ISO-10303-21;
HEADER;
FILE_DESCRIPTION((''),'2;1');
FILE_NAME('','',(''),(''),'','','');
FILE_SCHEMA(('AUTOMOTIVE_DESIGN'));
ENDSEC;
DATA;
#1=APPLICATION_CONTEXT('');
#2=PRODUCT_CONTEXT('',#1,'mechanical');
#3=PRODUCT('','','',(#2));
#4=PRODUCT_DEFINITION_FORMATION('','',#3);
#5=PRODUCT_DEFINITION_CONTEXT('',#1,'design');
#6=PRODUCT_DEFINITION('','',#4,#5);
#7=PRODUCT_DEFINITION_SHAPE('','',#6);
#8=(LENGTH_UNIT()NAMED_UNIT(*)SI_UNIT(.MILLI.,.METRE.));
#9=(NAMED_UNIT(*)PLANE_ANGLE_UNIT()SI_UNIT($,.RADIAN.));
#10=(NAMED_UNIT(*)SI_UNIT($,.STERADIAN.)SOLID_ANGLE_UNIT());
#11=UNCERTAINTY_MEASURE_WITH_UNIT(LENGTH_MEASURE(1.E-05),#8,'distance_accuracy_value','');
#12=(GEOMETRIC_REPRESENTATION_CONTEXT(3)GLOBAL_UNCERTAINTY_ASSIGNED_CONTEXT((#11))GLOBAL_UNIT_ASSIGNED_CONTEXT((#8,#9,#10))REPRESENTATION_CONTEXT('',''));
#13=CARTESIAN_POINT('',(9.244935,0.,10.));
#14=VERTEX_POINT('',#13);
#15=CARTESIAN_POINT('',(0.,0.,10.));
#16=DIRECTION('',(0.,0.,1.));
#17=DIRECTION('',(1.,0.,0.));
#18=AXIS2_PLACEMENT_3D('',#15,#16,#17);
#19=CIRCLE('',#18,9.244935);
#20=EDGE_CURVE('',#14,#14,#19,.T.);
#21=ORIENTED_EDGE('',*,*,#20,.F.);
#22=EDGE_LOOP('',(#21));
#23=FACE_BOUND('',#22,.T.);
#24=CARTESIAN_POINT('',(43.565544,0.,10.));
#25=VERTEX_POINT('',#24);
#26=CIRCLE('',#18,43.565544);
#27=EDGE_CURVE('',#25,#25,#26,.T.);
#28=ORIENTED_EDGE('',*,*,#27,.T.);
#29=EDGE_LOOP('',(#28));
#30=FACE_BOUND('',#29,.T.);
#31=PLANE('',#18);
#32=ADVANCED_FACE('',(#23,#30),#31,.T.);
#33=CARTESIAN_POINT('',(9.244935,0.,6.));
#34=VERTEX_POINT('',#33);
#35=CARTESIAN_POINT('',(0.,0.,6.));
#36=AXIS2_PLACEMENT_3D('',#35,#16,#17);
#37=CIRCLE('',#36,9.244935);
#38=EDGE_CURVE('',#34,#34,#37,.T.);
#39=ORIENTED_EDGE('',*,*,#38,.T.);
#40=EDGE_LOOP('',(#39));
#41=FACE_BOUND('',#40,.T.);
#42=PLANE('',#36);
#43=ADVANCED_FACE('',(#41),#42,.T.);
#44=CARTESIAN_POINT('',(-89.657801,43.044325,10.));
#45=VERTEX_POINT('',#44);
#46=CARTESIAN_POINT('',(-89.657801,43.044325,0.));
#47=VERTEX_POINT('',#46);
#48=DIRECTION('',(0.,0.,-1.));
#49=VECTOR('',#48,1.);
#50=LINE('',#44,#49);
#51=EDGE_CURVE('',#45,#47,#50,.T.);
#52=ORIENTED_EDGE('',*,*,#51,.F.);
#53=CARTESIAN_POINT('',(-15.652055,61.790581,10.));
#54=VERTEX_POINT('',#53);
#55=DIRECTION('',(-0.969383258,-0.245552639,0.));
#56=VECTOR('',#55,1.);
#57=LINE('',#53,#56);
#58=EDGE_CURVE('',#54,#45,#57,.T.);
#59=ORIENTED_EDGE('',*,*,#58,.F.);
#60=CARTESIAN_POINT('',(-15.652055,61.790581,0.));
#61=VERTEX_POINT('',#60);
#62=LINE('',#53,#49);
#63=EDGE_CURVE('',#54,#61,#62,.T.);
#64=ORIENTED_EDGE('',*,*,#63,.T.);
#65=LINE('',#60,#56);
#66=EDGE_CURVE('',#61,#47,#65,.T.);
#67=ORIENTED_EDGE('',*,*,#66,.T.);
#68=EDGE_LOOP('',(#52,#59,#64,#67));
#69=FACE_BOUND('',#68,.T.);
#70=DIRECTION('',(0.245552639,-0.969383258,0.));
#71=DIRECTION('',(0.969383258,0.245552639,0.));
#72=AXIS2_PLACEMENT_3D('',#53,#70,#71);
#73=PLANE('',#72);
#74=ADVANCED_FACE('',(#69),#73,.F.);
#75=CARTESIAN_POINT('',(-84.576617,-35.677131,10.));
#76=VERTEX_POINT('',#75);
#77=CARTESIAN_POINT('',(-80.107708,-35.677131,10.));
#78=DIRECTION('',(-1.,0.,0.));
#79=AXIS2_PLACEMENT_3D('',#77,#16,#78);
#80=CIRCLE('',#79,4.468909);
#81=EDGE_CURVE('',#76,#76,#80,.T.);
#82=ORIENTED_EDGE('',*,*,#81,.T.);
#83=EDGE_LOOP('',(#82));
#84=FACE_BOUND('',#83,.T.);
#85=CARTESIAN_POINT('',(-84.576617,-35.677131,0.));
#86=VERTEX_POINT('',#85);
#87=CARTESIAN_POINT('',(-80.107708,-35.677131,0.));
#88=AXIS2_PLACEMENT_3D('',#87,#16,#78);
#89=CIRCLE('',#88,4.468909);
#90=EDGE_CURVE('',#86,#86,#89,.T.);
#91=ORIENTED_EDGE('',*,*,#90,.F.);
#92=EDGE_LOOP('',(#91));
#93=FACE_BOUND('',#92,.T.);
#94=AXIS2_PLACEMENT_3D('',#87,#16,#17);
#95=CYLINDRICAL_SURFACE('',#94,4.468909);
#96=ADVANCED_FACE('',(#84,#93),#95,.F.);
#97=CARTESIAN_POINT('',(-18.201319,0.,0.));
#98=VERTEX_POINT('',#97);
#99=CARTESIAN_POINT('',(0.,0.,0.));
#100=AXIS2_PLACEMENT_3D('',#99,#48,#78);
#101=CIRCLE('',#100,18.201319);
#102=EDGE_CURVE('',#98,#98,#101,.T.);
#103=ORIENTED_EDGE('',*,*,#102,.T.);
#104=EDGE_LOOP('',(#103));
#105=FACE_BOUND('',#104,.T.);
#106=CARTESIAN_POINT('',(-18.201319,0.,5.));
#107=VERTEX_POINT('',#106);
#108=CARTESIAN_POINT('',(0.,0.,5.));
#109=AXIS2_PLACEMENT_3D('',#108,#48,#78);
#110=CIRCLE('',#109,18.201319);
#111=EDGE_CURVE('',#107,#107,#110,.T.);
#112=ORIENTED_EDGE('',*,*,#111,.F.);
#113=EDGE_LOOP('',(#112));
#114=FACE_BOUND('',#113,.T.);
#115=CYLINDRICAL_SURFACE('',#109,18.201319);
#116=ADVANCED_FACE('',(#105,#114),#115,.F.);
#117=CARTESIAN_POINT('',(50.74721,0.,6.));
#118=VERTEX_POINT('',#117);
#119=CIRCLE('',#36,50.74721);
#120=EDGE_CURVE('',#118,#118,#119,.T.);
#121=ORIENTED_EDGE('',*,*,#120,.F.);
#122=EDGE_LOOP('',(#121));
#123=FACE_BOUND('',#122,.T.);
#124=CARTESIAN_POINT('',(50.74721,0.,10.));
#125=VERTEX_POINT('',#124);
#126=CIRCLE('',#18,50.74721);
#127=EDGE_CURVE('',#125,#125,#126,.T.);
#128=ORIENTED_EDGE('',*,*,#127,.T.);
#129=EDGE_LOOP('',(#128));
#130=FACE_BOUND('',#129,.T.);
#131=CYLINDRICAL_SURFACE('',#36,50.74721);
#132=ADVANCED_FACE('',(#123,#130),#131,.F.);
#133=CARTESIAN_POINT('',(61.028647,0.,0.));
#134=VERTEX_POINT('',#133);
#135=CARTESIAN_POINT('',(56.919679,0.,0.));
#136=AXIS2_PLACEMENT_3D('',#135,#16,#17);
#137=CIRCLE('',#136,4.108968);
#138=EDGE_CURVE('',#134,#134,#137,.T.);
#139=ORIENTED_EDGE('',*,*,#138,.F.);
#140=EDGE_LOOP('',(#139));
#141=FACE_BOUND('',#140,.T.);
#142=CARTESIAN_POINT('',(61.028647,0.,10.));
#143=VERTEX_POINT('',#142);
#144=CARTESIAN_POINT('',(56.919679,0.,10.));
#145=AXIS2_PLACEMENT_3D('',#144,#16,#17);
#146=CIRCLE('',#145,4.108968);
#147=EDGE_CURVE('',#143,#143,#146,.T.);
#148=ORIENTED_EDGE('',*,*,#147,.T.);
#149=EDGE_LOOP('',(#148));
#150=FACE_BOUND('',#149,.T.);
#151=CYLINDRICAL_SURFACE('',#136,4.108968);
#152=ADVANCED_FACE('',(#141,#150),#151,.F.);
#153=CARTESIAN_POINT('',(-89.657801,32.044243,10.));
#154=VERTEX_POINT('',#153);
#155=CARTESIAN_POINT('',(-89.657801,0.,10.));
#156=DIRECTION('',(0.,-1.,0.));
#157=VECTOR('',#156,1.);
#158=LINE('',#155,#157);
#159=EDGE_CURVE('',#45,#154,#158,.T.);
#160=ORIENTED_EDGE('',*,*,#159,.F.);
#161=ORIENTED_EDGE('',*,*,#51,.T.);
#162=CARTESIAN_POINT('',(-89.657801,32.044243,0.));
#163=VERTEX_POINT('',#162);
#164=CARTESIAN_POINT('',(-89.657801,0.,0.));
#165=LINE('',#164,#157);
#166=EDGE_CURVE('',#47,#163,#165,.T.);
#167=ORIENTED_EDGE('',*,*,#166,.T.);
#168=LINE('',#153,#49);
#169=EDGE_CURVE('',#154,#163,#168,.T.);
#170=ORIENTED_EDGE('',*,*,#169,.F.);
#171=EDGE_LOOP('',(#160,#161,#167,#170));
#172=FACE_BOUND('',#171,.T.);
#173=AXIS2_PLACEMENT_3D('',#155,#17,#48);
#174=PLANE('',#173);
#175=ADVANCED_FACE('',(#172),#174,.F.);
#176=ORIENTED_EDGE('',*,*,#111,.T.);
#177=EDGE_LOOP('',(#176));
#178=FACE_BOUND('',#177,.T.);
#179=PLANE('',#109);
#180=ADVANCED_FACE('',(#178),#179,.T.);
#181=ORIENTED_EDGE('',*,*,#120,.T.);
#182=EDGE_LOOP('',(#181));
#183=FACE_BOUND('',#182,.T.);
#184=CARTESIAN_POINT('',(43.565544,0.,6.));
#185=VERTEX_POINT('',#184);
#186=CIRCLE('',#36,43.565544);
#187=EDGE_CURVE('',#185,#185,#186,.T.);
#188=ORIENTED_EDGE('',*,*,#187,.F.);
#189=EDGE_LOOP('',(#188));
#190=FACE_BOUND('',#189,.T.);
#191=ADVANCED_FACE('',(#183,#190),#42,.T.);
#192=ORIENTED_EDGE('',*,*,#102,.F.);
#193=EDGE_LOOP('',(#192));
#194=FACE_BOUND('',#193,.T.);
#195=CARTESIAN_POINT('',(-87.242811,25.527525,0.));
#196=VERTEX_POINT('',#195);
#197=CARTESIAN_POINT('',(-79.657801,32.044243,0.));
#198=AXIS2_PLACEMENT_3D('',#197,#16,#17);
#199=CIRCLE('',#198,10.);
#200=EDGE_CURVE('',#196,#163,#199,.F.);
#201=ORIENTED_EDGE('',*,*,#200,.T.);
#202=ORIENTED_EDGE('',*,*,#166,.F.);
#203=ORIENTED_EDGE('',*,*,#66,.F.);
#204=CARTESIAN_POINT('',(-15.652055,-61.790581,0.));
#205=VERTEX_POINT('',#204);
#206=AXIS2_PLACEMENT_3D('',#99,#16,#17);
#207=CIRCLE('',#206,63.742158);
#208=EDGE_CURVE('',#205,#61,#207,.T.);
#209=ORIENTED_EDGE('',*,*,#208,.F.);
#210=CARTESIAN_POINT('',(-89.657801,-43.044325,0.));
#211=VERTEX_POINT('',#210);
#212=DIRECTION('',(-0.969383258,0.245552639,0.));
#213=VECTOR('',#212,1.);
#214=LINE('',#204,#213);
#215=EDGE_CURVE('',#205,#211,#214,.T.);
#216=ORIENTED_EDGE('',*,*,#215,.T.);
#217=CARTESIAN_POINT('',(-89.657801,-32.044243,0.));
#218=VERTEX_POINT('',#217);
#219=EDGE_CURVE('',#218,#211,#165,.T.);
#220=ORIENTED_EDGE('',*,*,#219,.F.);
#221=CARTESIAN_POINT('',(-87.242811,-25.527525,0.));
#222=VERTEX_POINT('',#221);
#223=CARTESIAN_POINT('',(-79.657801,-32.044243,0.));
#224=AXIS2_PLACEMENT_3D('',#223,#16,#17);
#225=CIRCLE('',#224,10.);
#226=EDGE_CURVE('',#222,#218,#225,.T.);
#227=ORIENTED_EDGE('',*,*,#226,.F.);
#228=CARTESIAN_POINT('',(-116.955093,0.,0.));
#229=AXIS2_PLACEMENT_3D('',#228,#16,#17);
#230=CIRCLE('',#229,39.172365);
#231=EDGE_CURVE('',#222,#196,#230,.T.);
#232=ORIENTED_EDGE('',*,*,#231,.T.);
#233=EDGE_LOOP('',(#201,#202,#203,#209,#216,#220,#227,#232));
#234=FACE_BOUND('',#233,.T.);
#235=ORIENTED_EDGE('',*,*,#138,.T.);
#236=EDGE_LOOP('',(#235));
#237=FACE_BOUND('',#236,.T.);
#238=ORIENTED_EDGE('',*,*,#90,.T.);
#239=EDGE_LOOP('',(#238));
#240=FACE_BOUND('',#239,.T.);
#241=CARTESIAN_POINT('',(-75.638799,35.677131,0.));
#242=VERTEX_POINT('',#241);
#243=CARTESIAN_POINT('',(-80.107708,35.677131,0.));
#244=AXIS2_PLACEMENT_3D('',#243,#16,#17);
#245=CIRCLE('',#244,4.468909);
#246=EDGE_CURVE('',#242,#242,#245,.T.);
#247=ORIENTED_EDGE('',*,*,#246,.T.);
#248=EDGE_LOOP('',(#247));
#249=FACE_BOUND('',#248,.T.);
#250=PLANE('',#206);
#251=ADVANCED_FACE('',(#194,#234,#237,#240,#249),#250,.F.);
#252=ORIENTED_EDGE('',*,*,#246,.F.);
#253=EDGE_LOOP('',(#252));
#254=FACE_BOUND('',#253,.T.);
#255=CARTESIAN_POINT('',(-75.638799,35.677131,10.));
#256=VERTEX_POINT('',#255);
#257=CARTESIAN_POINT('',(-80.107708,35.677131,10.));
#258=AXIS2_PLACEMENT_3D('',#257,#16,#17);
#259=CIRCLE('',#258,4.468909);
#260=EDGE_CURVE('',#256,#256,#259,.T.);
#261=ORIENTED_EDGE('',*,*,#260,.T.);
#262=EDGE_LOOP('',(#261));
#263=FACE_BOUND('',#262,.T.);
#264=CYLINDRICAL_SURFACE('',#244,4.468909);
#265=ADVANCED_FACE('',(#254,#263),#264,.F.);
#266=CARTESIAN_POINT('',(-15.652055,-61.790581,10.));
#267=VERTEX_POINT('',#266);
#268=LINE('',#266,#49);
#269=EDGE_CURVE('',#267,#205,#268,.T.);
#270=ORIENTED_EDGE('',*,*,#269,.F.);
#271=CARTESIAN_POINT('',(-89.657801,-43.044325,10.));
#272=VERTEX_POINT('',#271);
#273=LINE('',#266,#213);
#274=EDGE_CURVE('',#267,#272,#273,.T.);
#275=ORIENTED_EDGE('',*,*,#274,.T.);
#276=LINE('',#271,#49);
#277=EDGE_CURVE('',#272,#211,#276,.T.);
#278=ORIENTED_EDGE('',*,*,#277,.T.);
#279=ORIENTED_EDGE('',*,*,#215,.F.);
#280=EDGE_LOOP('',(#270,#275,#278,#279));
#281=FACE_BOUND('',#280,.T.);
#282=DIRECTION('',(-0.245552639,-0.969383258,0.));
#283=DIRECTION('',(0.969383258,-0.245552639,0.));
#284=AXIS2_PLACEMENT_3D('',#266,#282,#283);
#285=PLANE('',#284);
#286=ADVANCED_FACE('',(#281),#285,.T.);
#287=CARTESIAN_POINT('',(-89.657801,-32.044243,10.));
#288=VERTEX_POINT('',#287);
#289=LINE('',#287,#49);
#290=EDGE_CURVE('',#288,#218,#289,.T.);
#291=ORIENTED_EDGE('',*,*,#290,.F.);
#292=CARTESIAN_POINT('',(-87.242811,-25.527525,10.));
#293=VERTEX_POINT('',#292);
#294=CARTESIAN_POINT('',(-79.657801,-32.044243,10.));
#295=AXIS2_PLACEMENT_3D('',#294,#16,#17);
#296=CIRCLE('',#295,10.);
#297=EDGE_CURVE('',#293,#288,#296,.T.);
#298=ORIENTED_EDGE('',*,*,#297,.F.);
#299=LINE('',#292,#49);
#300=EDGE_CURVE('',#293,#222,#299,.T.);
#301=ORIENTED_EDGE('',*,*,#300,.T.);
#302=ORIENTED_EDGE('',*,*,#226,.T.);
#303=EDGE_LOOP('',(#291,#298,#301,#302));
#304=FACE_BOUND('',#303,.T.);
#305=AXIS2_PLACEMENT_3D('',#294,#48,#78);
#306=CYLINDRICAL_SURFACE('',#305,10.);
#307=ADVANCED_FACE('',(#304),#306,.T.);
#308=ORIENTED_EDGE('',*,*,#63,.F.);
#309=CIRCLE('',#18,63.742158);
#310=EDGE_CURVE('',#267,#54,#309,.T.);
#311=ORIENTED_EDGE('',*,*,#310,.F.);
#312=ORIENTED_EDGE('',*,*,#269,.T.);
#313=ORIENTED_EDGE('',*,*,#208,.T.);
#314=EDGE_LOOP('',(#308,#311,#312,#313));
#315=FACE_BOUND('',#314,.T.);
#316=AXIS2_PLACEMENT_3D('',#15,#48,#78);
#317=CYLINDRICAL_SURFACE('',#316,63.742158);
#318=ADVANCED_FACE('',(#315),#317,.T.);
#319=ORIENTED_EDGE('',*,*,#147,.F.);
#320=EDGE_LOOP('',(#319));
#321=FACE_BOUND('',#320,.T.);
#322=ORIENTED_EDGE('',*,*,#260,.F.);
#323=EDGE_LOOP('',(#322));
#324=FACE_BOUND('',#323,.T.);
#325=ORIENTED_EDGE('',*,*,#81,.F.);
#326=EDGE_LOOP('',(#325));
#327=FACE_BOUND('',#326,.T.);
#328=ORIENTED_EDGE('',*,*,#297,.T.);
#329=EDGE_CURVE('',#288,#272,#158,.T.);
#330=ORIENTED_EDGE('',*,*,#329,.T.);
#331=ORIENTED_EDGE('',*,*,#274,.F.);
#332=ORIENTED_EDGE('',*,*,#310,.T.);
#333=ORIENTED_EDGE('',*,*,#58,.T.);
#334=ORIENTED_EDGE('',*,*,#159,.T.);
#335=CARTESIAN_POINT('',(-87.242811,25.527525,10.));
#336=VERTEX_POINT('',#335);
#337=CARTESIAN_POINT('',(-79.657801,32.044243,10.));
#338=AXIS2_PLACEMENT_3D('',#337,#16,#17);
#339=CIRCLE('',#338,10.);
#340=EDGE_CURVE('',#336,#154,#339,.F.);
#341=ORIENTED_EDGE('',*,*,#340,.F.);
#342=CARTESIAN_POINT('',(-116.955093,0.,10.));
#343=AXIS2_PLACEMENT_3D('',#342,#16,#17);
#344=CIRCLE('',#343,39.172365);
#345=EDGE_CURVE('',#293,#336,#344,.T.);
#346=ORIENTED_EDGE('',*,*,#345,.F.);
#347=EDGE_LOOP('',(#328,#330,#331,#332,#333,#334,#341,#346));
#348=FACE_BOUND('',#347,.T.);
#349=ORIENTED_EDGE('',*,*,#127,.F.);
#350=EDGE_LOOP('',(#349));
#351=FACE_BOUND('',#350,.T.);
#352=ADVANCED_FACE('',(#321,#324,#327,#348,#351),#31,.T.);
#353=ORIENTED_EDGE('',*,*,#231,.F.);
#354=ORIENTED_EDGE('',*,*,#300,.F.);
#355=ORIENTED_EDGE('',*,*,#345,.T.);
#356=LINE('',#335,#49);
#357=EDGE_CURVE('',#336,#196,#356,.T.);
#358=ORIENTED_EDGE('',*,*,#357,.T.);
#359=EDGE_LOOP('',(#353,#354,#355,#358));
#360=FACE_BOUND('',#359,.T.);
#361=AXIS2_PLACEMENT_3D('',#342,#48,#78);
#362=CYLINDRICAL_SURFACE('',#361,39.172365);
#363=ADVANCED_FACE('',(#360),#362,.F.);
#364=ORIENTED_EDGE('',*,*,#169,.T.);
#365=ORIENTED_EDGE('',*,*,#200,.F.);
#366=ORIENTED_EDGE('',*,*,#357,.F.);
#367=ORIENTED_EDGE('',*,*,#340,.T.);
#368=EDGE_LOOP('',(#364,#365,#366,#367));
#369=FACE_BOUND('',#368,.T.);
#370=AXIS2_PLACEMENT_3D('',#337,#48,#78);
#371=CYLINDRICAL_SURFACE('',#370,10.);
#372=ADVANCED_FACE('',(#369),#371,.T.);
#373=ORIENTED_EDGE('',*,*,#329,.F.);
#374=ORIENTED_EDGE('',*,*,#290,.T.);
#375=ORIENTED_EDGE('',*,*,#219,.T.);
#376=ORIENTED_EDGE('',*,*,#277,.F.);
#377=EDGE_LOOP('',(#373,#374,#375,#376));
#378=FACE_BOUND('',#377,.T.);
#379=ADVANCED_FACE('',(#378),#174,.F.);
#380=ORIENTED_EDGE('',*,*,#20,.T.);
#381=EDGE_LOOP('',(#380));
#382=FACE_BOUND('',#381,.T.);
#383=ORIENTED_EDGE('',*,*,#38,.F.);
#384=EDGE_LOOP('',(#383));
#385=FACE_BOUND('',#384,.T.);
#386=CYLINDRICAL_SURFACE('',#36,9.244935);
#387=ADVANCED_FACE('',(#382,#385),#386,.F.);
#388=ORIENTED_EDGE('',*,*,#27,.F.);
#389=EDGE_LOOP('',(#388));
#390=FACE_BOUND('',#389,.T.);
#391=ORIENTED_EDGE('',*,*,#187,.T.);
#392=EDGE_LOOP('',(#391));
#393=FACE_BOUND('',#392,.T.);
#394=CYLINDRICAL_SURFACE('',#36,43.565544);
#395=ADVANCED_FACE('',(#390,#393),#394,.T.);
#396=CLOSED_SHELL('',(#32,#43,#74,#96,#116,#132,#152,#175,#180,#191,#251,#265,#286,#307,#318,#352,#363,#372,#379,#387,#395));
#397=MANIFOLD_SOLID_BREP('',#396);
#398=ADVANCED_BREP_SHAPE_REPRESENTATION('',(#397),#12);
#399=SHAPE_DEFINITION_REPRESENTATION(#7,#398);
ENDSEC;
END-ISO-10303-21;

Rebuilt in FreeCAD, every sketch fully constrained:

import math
import FreeCAD as App
import Part
import Sketcher
Q = App.Units.Quantity

doc = App.newDocument("Part")
params = doc.addObject("Spreadsheet::Sheet", "Params")
for row, (alias, value) in enumerate([
    ("sketch1_radius", "10 mm"),
    ("pad1_length", "10 mm"),
    ("pocket2_length", "4 mm"),
    ("pocket3_length", "4 mm"),
    ("pocket4_length", "5 mm"),
], start=1):
    params.set(f"A{row}", alias)
    params.set(f"B{row}", "=" + value)
    params.setAlias(f"B{row}", alias)

body = doc.addObject("PartDesign::Body", "Body")

# Sketch on XY plane
sketch1 = body.newObject("Sketcher::SketchObject", "Sketch")
sketch1.AttachmentSupport = (doc.getObject("XY_Plane"), [""])
sketch1.MapMode = "FlatFace"
sketch1.addGeometry([
    Part.LineSegment(App.Vector(-90, -43, 0), App.Vector(-16, -62, 0)),  # 0
    Part.ArcOfCircle(Part.Circle(App.Vector(0, 0, 0), App.Vector(0, 0, 1), 64), math.radians(-104), math.radians(104)),  # 1
    Part.LineSegment(App.Vector(-16, 62, 0), App.Vector(-90, 43, 0)),  # 2
    Part.LineSegment(App.Vector(-90, 43, 0), App.Vector(-90, 32, 0)),  # 3
    Part.ArcOfCircle(Part.Circle(App.Vector(-80, 32, 0), App.Vector(0, 0, 1), 10), math.radians(-180), math.radians(-139)),  # 4
    Part.ArcOfCircle(Part.Circle(App.Vector(-117, 0, 0), App.Vector(0, 0, 1), 39), math.radians(-41), math.radians(41)),  # 5
    Part.ArcOfCircle(Part.Circle(App.Vector(-80, -32, 0), App.Vector(0, 0, 1), 10), math.radians(139), math.radians(180)),  # 6
    Part.LineSegment(App.Vector(-90, -32, 0), App.Vector(-90, -43, 0)),  # 7
], False)
sketch1.addConstraint([
    Sketcher.Constraint("Tangent", 0, 2, 1, 1),
    Sketcher.Constraint("Tangent", 1, 2, 2, 1),
    Sketcher.Constraint("Coincident", 2, 2, 3, 1),
    Sketcher.Constraint("Tangent", 3, 2, 4, 1),
    Sketcher.Constraint("Tangent", 4, 2, 5, 2),
    Sketcher.Constraint("Tangent", 5, 1, 6, 1),
    Sketcher.Constraint("Tangent", 6, 2, 7, 1),
    Sketcher.Constraint("Coincident", 7, 2, 0, 1),
    Sketcher.Constraint("Vertical", 3),
    Sketcher.Constraint("Vertical", 7),
    Sketcher.Constraint("Coincident", 1, 3, -1, 1),
    Sketcher.Constraint("Equal", 4, 6),
    Sketcher.Constraint("Symmetric", 4, 3, 6, 3, -1),
    Sketcher.Constraint("Vertical", 0, 2, 1, 2),
    Sketcher.Constraint("Radius", 4, Q("10 mm")),
    Sketcher.Constraint("Radius", 1, Q("63.742158 mm")),
    Sketcher.Constraint("Radius", 5, Q("39.172365 mm")),
    Sketcher.Constraint("DistanceX", 4, 3, -1, 1, Q("79.6578 mm")),
    Sketcher.Constraint("DistanceY", 4, 2, 2, 2, Q("17.5168 mm")),
    Sketcher.Constraint("DistanceY", 3, 2, 3, 1, Q("11.000082 mm")),
])
sketch1.setExpression("Constraints[14]", "Params.sketch1_radius")
pad1 = body.newObject("PartDesign::Pad", "Pad")
pad1.Profile = sketch1
pad1.setExpression("Length", "Params.pad1_length")

# Sketch on XY plane
sketch2 = body.newObject("Sketcher::SketchObject", "Sketch001")
sketch2.AttachmentSupport = (doc.getObject("XY_Plane"), [""])
sketch2.MapMode = "FlatFace"
sketch2.AttachmentOffset = App.Placement(App.Vector(0, 0, 10), App.Rotation())
sketch2.addGeometry([
    Part.Circle(App.Vector(-80.1, 35.7, 0), App.Vector(0, 0, 1), 4.5),
    Part.Circle(App.Vector(-80.1, -35.7, 0), App.Vector(0, 0, 1), 4.5),
    Part.Circle(App.Vector(56.9, 0, 0), App.Vector(0, 0, 1), 4.1),
], False)
sketch2.addConstraint([
    Sketcher.Constraint("Equal", 0, 1),
    Sketcher.Constraint("Symmetric", 0, 3, 1, 3, -1),
    Sketcher.Constraint("PointOnObject", 2, 3, -1),
    Sketcher.Constraint("Diameter", 0, Q("8.937818 mm")),
    Sketcher.Constraint("Diameter", 2, Q("8.217937 mm")),
    Sketcher.Constraint("DistanceY", -1, 1, 0, 3, Q("35.677131 mm")),
    Sketcher.Constraint("DistanceX", -1, 1, 2, 3, Q("56.919679 mm")),
    Sketcher.Constraint("DistanceX", 0, 3, -1, 1, Q("80.107708 mm")),
])
pocket1 = body.newObject("PartDesign::Pocket", "Pocket")
pocket1.Profile = sketch2
pocket1.Type = "ThroughAll"

# Sketch on XY plane
sketch3 = body.newObject("Sketcher::SketchObject", "Sketch002")
sketch3.AttachmentSupport = (doc.getObject("XY_Plane"), [""])
sketch3.MapMode = "FlatFace"
sketch3.AttachmentOffset = App.Placement(App.Vector(0, 0, 10), App.Rotation())
sketch3.addGeometry([
    Part.Circle(App.Vector(0, 0, 0), App.Vector(0, 0, 1), 51),
    Part.Circle(App.Vector(0, 0, 0), App.Vector(0, 0, 1), 44),
], False)
sketch3.addConstraint([
    Sketcher.Constraint("Coincident", 0, 3, -1, 1),
    Sketcher.Constraint("Coincident", 1, 3, -1, 1),
    Sketcher.Constraint("Diameter", 0, Q("101.49442 mm")),
    Sketcher.Constraint("Diameter", 1, Q("87.131088 mm")),
])
pocket2 = body.newObject("PartDesign::Pocket", "Pocket001")
pocket2.Profile = sketch3
pocket2.setExpression("Length", "Params.pocket2_length")

# Sketch on XY plane
sketch4 = body.newObject("Sketcher::SketchObject", "Sketch003")
sketch4.AttachmentSupport = (doc.getObject("XY_Plane"), [""])
sketch4.MapMode = "FlatFace"
sketch4.AttachmentOffset = App.Placement(App.Vector(0, 0, 10), App.Rotation())
sketch4.addGeometry(Part.Circle(App.Vector(0, 0, 0), App.Vector(0, 0, 1), 9), False)
sketch4.addConstraint([
    Sketcher.Constraint("Coincident", 0, 3, -1, 1),
    Sketcher.Constraint("Diameter", 0, Q("18.48987 mm")),
])
pocket3 = body.newObject("PartDesign::Pocket", "Pocket002")
pocket3.Profile = sketch4
pocket3.setExpression("Length", "Params.pocket3_length")

# Sketch on XY plane
sketch5 = body.newObject("Sketcher::SketchObject", "Sketch004")
sketch5.AttachmentSupport = (doc.getObject("XY_Plane"), [""])
sketch5.MapMode = "FlatFace"
sketch5.addGeometry(Part.Circle(App.Vector(0, 0, 0), App.Vector(0, 0, 1), 18), False)
sketch5.addConstraint([
    Sketcher.Constraint("Coincident", 0, 3, -1, 1),
    Sketcher.Constraint("Diameter", 0, Q("36.402638 mm")),
])
pocket4 = body.newObject("PartDesign::Pocket", "Pocket003")
pocket4.Profile = sketch5
pocket4.setExpression("Length", "Params.pocket4_length")
pocket4.Reversed = True

doc.recompute()
